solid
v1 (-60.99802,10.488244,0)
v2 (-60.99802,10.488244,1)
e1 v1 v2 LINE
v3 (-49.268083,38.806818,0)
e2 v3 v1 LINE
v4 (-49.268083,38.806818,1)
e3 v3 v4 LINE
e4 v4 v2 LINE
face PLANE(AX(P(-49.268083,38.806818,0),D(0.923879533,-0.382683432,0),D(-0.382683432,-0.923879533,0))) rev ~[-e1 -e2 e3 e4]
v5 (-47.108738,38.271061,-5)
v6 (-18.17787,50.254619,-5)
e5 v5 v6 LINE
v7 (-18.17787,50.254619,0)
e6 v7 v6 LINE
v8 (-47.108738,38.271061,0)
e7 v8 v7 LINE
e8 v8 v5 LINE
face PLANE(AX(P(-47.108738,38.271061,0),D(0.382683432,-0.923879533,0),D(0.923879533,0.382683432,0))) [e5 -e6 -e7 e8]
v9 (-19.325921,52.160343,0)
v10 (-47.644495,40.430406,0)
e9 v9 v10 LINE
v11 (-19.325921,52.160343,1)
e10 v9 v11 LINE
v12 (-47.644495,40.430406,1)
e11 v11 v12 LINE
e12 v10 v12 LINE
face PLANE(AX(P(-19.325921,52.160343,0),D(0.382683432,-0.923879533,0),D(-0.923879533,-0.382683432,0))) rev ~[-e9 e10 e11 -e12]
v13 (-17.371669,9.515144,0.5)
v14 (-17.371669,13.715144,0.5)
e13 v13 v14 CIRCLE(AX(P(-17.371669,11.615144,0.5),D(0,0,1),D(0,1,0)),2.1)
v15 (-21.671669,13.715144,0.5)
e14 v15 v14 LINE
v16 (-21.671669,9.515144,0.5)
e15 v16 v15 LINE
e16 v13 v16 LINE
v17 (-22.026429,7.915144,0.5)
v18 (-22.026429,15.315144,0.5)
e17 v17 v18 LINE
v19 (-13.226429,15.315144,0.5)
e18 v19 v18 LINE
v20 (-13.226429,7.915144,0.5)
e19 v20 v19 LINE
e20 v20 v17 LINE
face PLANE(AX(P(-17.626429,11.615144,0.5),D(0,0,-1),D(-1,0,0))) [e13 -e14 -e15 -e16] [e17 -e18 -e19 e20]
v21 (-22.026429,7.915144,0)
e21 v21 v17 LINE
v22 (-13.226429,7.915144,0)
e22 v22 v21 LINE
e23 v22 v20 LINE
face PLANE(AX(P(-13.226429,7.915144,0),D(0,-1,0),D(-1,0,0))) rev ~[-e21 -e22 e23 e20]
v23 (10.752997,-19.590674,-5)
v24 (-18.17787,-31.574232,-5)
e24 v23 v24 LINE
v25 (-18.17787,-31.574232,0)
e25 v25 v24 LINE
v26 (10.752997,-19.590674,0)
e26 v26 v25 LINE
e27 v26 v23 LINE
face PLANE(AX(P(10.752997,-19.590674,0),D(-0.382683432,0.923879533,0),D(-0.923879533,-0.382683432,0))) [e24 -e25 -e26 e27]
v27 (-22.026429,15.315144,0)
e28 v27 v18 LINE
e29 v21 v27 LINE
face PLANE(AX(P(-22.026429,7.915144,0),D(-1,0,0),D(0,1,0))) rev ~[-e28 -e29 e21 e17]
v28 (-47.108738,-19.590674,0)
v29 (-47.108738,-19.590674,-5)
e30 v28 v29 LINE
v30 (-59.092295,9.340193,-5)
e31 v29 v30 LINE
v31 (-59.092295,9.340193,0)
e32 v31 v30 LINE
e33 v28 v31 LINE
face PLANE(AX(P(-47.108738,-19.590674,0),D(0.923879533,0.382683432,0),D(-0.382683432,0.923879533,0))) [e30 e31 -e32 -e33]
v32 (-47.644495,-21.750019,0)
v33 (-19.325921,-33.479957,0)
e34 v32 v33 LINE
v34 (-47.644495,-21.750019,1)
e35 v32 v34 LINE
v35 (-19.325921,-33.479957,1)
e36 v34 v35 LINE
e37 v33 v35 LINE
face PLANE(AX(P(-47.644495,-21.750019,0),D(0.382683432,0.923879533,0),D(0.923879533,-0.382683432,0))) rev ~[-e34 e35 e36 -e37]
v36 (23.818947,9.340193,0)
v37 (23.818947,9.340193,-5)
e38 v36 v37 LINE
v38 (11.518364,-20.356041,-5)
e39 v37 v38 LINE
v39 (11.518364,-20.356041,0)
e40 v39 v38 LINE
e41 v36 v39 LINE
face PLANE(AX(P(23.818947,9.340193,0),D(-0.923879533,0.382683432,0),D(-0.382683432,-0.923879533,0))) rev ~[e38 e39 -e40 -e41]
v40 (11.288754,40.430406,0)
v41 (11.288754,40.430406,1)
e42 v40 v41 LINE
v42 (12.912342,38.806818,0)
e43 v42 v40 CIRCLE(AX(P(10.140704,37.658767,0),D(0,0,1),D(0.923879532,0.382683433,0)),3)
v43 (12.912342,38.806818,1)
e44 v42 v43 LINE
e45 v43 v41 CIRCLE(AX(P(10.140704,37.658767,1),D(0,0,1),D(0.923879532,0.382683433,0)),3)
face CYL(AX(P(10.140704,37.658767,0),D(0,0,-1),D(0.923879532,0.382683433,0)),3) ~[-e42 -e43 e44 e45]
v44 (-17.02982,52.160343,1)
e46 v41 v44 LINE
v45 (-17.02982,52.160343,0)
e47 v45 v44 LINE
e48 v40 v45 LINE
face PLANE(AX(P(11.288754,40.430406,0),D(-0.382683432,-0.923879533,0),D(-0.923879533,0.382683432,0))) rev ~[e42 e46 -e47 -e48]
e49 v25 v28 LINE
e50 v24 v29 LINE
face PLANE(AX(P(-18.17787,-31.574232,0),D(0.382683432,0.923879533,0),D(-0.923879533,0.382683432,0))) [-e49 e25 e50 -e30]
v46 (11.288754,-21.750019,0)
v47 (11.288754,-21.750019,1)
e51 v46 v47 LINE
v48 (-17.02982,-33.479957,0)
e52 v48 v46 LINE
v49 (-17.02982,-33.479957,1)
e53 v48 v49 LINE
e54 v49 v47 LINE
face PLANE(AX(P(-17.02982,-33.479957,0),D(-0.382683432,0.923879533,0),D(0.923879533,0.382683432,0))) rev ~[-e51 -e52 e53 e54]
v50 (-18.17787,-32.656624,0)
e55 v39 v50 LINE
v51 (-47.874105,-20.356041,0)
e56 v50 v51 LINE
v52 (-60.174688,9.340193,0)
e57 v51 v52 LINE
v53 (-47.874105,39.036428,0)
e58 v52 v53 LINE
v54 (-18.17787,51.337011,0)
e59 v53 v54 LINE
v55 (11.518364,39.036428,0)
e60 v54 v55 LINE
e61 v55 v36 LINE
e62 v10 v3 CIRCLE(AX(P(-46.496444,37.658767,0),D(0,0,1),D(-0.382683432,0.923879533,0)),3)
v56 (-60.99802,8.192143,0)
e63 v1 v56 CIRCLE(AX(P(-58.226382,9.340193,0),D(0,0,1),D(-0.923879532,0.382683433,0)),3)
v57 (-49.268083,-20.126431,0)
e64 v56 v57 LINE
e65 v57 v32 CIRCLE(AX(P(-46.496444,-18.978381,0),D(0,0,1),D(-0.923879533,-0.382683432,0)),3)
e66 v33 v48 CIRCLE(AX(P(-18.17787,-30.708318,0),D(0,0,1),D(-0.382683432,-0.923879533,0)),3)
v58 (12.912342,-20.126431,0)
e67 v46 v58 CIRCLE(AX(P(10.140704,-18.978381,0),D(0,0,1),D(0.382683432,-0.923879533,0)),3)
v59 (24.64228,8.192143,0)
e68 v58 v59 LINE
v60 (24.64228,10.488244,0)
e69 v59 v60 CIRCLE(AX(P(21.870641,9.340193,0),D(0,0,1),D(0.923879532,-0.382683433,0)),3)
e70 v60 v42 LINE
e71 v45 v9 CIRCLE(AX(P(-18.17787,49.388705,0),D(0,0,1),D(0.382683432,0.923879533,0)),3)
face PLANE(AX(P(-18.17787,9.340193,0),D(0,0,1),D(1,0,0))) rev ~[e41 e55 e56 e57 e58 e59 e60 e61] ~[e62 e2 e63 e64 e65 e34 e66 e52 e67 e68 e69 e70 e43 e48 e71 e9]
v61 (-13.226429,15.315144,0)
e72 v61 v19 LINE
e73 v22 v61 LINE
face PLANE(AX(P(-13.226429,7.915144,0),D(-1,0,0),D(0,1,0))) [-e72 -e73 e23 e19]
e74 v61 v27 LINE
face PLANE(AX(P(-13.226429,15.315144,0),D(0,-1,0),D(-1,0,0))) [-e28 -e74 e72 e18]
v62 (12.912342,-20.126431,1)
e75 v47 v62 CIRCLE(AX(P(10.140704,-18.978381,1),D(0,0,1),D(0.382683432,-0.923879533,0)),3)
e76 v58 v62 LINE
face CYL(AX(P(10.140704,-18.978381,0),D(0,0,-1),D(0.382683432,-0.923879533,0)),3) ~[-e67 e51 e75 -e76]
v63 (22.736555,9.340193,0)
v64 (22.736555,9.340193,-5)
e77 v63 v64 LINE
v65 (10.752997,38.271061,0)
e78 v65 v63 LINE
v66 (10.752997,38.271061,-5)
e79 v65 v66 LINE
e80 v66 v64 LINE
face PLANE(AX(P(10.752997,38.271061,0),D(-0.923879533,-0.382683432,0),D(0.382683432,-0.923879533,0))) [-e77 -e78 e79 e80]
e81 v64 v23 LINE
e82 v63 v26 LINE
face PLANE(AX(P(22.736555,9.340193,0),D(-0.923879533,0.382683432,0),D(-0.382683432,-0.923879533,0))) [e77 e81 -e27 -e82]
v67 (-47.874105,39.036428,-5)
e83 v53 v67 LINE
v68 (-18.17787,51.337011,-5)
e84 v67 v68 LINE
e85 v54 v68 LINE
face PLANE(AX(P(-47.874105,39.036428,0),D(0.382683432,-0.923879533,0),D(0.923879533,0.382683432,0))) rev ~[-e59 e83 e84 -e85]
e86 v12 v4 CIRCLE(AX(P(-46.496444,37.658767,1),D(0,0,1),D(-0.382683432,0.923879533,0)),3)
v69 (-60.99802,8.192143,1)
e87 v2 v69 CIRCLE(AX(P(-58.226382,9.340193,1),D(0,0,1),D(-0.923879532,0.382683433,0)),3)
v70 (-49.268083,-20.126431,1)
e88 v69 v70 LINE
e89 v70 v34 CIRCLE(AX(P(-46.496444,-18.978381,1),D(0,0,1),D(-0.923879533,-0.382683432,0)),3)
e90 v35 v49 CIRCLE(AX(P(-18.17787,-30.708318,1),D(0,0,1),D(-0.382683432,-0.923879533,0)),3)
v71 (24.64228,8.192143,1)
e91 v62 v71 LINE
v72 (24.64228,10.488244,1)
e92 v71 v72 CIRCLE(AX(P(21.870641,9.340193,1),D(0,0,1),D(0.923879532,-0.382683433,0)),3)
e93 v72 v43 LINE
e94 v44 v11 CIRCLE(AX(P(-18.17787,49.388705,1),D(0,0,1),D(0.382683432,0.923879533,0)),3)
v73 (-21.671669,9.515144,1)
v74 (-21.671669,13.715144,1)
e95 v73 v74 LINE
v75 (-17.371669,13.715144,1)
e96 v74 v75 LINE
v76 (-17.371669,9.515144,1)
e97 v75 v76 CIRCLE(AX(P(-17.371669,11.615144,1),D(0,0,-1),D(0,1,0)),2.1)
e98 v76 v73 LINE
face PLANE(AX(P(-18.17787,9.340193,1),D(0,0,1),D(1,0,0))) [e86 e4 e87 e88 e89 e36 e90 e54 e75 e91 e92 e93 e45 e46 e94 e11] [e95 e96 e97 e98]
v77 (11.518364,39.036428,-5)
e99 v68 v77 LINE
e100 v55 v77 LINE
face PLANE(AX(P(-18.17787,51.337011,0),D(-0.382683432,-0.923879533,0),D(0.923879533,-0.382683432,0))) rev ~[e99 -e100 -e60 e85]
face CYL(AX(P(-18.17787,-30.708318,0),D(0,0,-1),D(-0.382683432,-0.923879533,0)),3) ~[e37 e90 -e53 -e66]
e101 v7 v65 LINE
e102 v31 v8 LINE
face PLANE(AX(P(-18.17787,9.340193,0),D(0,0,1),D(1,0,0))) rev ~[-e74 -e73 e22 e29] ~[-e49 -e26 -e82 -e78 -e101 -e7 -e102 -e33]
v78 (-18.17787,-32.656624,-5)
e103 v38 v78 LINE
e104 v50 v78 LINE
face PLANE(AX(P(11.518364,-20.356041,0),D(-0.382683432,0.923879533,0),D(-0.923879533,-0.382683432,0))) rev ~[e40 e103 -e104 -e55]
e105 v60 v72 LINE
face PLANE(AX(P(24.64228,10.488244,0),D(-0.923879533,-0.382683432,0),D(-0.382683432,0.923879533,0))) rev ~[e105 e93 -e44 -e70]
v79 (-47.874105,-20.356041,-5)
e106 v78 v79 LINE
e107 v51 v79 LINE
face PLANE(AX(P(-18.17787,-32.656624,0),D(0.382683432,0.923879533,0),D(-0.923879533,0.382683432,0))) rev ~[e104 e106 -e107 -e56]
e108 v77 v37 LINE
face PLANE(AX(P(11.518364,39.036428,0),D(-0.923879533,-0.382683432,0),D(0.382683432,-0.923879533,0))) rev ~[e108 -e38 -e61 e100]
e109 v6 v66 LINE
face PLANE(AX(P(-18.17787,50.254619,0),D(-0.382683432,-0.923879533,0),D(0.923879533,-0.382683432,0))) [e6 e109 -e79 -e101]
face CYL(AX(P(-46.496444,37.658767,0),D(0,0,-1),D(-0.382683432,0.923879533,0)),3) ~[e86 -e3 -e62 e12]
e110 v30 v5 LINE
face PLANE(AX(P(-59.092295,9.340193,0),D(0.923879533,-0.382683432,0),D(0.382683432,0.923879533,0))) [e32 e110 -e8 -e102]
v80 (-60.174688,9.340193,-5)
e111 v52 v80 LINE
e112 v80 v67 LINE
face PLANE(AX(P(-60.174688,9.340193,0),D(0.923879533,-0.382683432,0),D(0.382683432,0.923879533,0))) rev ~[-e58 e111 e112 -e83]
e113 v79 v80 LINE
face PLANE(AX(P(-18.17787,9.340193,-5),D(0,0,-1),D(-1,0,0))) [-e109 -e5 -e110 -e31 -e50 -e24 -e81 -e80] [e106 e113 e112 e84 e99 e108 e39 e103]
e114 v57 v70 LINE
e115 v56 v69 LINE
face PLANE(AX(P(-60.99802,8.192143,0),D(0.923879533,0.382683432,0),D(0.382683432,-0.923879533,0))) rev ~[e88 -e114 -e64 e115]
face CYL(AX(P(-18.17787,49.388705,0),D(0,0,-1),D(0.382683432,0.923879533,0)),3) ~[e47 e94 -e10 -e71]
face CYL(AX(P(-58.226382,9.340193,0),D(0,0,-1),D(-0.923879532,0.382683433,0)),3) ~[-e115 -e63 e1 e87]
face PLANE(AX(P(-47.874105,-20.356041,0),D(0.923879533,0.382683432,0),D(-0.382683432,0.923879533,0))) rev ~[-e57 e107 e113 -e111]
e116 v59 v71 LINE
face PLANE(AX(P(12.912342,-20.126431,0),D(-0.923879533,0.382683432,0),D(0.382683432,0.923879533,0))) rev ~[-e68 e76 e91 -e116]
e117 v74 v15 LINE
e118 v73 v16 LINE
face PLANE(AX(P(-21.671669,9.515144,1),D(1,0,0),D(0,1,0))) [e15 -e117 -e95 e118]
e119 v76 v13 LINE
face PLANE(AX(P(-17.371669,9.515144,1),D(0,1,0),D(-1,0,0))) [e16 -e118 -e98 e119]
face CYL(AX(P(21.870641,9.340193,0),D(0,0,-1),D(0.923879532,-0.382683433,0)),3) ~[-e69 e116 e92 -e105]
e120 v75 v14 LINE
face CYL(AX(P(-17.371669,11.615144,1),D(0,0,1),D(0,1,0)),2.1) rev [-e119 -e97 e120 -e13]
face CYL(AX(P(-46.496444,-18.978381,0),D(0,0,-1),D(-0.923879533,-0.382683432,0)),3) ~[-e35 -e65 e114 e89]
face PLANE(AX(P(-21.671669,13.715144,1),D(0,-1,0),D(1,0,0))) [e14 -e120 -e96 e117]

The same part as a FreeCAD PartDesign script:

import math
import FreeCAD as App
import Part
import Sketcher
Q = App.Units.Quantity


def add_polygon(sketch, points):
    """Adds a closed chain of lines whose ends are joined by coincident constraints."""
    first, n = sketch.GeometryCount, len(points)
    for a, b in zip(points, points[1:] + points[:1]):
        sketch.addGeometry(Part.LineSegment(App.Vector(*a, 0), App.Vector(*b, 0)), False)
    for i in range(n):
        sketch.addConstraint(Sketcher.Constraint("Coincident", first + i, 2, first + (i + 1) % n, 1))

doc = App.newDocument("Part")
body = doc.addObject("PartDesign::Body", "Body")

sketch1 = doc.addObject("Sketcher::SketchObject", "Sketch")
body.addObject(sketch1)
sketch1.AttachmentSupport = (doc.XY_Plane, [""])
sketch1.MapMode = "FlatFace"
sketch1.addGeometry(Part.LineSegment(App.Vector(-19.3, 52.2, 0), App.Vector(-47.6, 40.4, 0)), False)
sketch1.addGeometry(Part.ArcOfCircle(Part.Circle(App.Vector(-46.5, 37.7, 0), App.Vector(0, 0, 1), 3), math.radians(112), math.radians(157)), False)
sketch1.addGeometry(Part.LineSegment(App.Vector(-49.3, 38.8, 0), App.Vector(-61, 10.5, 0)), False)
sketch1.addGeometry(Part.ArcOfCircle(Part.Circle(App.Vector(-58.2, 9.3, 0), App.Vector(0, 0, 1), 3), math.radians(157), math.radians(203)), False)
sketch1.addGeometry(Part.LineSegment(App.Vector(-61, 8.2, 0), App.Vector(-49.3, -20.1, 0)), False)
sketch1.addGeometry(Part.ArcOfCircle(Part.Circle(App.Vector(-46.5, -19, 0), App.Vector(0, 0, 1), 3), math.radians(-158), math.radians(-112)), False)
sketch1.addGeometry(Part.LineSegment(App.Vector(-47.6, -21.8, 0), App.Vector(-19.3, -33.5, 0)), False)
sketch1.addGeometry(Part.ArcOfCircle(Part.Circle(App.Vector(-18.2, -30.7, 0), App.Vector(0, 0, 1), 3), math.radians(-112), math.radians(-68)), False)
sketch1.addGeometry(Part.LineSegment(App.Vector(-17, -33.5, 0), App.Vector(11.3, -21.8, 0)), False)
sketch1.addGeometry(Part.ArcOfCircle(Part.Circle(App.Vector(10.1, -19, 0), App.Vector(0, 0, 1), 3), math.radians(-68), math.radians(-22)), False)
sketch1.addGeometry(Part.LineSegment(App.Vector(12.9, -20.1, 0), App.Vector(24.6, 8.2, 0)), False)
sketch1.addGeometry(Part.ArcOfCircle(Part.Circle(App.Vector(21.9, 9.3, 0), App.Vector(0, 0, 1), 3), math.radians(-23), math.radians(23)), False)
sketch1.addGeometry(Part.LineSegment(App.Vector(24.6, 10.5, 0), App.Vector(12.9, 38.8, 0)), False)
sketch1.addGeometry(Part.ArcOfCircle(Part.Circle(App.Vector(10.1, 37.7, 0), App.Vector(0, 0, 1), 3), math.radians(23), math.radians(68)), False)
sketch1.addGeometry(Part.LineSegment(App.Vector(11.3, 40.4, 0), App.Vector(-17, 52.2, 0)), False)
sketch1.addGeometry(Part.ArcOfCircle(Part.Circle(App.Vector(-18.2, 49.4, 0), App.Vector(0, 0, 1), 3), math.radians(68), math.radians(112)), False)
sketch1.addConstraint(Sketcher.Constraint("Tangent", 0, 2, 1, 1))
sketch1.addConstraint(Sketcher.Constraint("Tangent", 1, 2, 2, 1))
sketch1.addConstraint(Sketcher.Constraint("Tangent", 2, 2, 3, 1))
sketch1.addConstraint(Sketcher.Constraint("Tangent", 3, 2, 4, 1))
sketch1.addConstraint(Sketcher.Constraint("Tangent", 4, 2, 5, 1))
sketch1.addConstraint(Sketcher.Constraint("Tangent", 5, 2, 6, 1))
sketch1.addConstraint(Sketcher.Constraint("Tangent", 6, 2, 7, 1))
sketch1.addConstraint(Sketcher.Constraint("Tangent", 7, 2, 8, 1))
sketch1.addConstraint(Sketcher.Constraint("Tangent", 8, 2, 9, 1))
sketch1.addConstraint(Sketcher.Constraint("Tangent", 9, 2, 10, 1))
sketch1.addConstraint(Sketcher.Constraint("Tangent", 10, 2, 11, 1))
sketch1.addConstraint(Sketcher.Constraint("Tangent", 11, 2, 12, 1))
sketch1.addConstraint(Sketcher.Constraint("Tangent", 12, 2, 13, 1))
sketch1.addConstraint(Sketcher.Constraint("Tangent", 13, 2, 14, 1))
sketch1.addConstraint(Sketcher.Constraint("Tangent", 14, 2, 15, 1))
sketch1.addConstraint(Sketcher.Constraint("Tangent", 15, 2, 0, 1))
sketch1.addConstraint(Sketcher.Constraint("Equal", 1, 3))
sketch1.addConstraint(Sketcher.Constraint("Equal", 3, 5))
sketch1.addConstraint(Sketcher.Constraint("Equal", 5, 7))
sketch1.addConstraint(Sketcher.Constraint("Equal", 7, 9))
sketch1.addConstraint(Sketcher.Constraint("Equal", 9, 11))
sketch1.addConstraint(Sketcher.Constraint("Equal", 11, 13))
sketch1.addConstraint(Sketcher.Constraint("Equal", 13, 15))
sketch1.addConstraint(Sketcher.Constraint("Perpendicular", 0, 4))
sketch1.addConstraint(Sketcher.Constraint("Perpendicular", 2, 6))
sketch1.addConstraint(Sketcher.Constraint("Perpendicular", 4, 8))
sketch1.addConstraint(Sketcher.Constraint("Perpendicular", 6, 10))
sketch1.addConstraint(Sketcher.Constraint("Perpendicular", 8, 12))
sketch1.addConstraint(Sketcher.Constraint("Perpendicular", 10, 14))
sketch1.addConstraint(Sketcher.Constraint("Horizontal", 5, 3, 9, 3))
sketch1.addConstraint(Sketcher.Constraint("Horizontal", 3, 3, 11, 3))
sketch1.addConstraint(Sketcher.Constraint("Horizontal", 1, 3, 13, 3))
sketch1.addConstraint(Sketcher.Constraint("Horizontal", 6, 2, 7, 2))
sketch1.addConstraint(Sketcher.Constraint("Vertical", 1, 3, 5, 3))
sketch1.addConstraint(Sketcher.Constraint("Equal", 0, 2))
sketch1.addConstraint(Sketcher.Constraint("Radius", 1, 3.0))
sketch1.addConstraint(Sketcher.Constraint("Angle", 0, Q("-157.5 deg")))
sketch1.addConstraint(Sketcher.Constraint("DistanceY", 0, 2, 15, 3, 8.958299))
sketch1.addConstraint(Sketcher.Constraint("DistanceX", 3, 3, -1, 1, 58.226382))
sketch1.addConstraint(Sketcher.Constraint("DistanceY", 5, 3, -1, 1, 18.978381))
pad1 = doc.addObject("PartDesign::Pad", "Pad")
body.addObject(pad1)
pad1.Profile = sketch1
pad1.Length = 1

sketch2 = doc.addObject("Sketcher::SketchObject", "Sketch001")
body.addObject(sketch2)
sketch2.AttachmentSupport = (doc.XY_Plane, [""])
sketch2.MapMode = "FlatFace"
sketch2.AttachmentOffset = App.Placement(App.Vector(0, 0, 1), App.Rotation())
sketch2.addGeometry(Part.LineSegment(App.Vector(-17.4, 13.7, 0), App.Vector(-21.7, 13.7, 0)), False)
sketch2.addGeometry(Part.LineSegment(App.Vector(-21.7, 13.7, 0), App.Vector(-21.7, 9.5, 0)), False)
sketch2.addGeometry(Part.LineSegment(App.Vector(-21.7, 9.5, 0), App.Vector(-17.4, 9.5, 0)), False)
sketch2.addGeometry(Part.ArcOfCircle(Part.Circle(App.Vector(-17.4, 11.6, 0), App.Vector(0, 0, 1), 2.1), math.radians(-90), math.radians(90)), False)
sketch2.addConstraint(Sketcher.Constraint("Coincident", 0, 2, 1, 1))
sketch2.addConstraint(Sketcher.Constraint("Coincident", 1, 2, 2, 1))
sketch2.addConstraint(Sketcher.Constraint("Tangent", 2, 2, 3, 1))
sketch2.addConstraint(Sketcher.Constraint("Tangent", 3, 2, 0, 1))
sketch2.addConstraint(Sketcher.Constraint("Horizontal", 0))
sketch2.addConstraint(Sketcher.Constraint("Vertical", 1))
sketch2.addConstraint(Sketcher.Constraint("Horizontal", 2))
sketch2.addConstraint(Sketcher.Constraint("Radius", 3, 2.1))
sketch2.addConstraint(Sketcher.Constraint("DistanceX", 0, 2, 0, 1, 4.3))
sketch2.addConstraint(Sketcher.Constraint("DistanceX", 3, 3, -1, 1, 17.371669))
sketch2.addConstraint(Sketcher.Constraint("DistanceY", -1, 1, 3, 3, 11.615144))
pocket1 = doc.addObject("PartDesign::Pocket", "Pocket")
body.addObject(pocket1)
pocket1.Profile = sketch2
pocket1.Length = 1

sketch3 = doc.addObject("Sketcher::SketchObject", "Sketch002")
body.addObject(sketch3)
sketch3.AttachmentSupport = (doc.XY_Plane, [""])
sketch3.MapMode = "FlatFace"
add_polygon(sketch3, [(-48, 39), (-18, 51), (12, 39), (24, 9), (12, -20), (-18, -33), (-48, -20), (-60, 9)])
add_polygon(sketch3, [(-18, 50), (-47, 38), (-59, 9), (-47, -20), (-18, -32), (11, -20), (23, 9), (11, 38)])
sketch3.addConstraint(Sketcher.Constraint("Perpendicular", 0, 2))
sketch3.addConstraint(Sketcher.Constraint("Perpendicular", 1, 3))
sketch3.addConstraint(Sketcher.Constraint("Perpendicular", 2, 4))
sketch3.addConstraint(Sketcher.Constraint("Perpendicular", 3, 5))
sketch3.addConstraint(Sketcher.Constraint("Perpendicular", 4, 6))
sketch3.addConstraint(Sketcher.Constraint("Perpendicular", 5, 7))
sketch3.addConstraint(Sketcher.Constraint("Perpendicular", 6, 8))
sketch3.addConstraint(Sketcher.Constraint("Parallel", 7, 9))
sketch3.addConstraint(Sketcher.Constraint("Perpendicular", 8, 10))
sketch3.addConstraint(Sketcher.Constraint("Perpendicular", 9, 11))
sketch3.addConstraint(Sketcher.Constraint("Perpendicular", 10, 12))
sketch3.addConstraint(Sketcher.Constraint("Perpendicular", 11, 13))
sketch3.addConstraint(Sketcher.Constraint("Perpendicular", 12, 14))
sketch3.addConstraint(Sketcher.Constraint("Perpendicular", 13, 15))
sketch3.addConstraint(Sketcher.Constraint("Horizontal", 3, 2, 5, 2))
sketch3.addConstraint(Sketcher.Constraint("Horizontal", 2, 2, 6, 2))
sketch3.addConstraint(Sketcher.Constraint("Horizontal", 1, 2, 7, 2))
sketch3.addConstraint(Sketcher.Constraint("Horizontal", 6, 2, 9, 2))
sketch3.addConstraint(Sketcher.Constraint("Horizontal", 10, 2, 12, 2))
sketch3.addConstraint(Sketcher.Constraint("Horizontal", 9, 2, 13, 2))
sketch3.addConstraint(Sketcher.Constraint("Horizontal", 8, 2, 14, 2))
sketch3.addConstraint(Sketcher.Constraint("Vertical", 1, 2, 3, 2))
sketch3.addConstraint(Sketcher.Constraint("Vertical", 0, 2, 4, 2))
sketch3.addConstraint(Sketcher.Constraint("Vertical", 8, 2, 10, 2))
sketch3.addConstraint(Sketcher.Constraint("Vertical", 4, 2, 11, 2))
sketch3.addConstraint(Sketcher.Constraint("Equal", 1, 2))
sketch3.addConstraint(Sketcher.Constraint("Equal", 8, 9))
sketch3.addConstraint(Sketcher.Constraint("Angle", 0, Q("22.5 deg")))
sketch3.addConstraint(Sketcher.Constraint("DistanceY", 5, 2, 8, 2, 58.627102))
sketch3.addConstraint(Sketcher.Constraint("DistanceX", 0, 2, -1, 1, 18.17787))
sketch3.addConstraint(Sketcher.Constraint("DistanceY", -1, 1, 0, 2, 51.337011))
sketch3.addConstraint(Sketcher.Constraint("DistanceY", 3, 2, -1, 1, 20.356041))
pad2 = doc.addObject("PartDesign::Pad", "Pad001")
body.addObject(pad2)
pad2.Profile = sketch3
pad2.Length = 5
pad2.Reversed = True

sketch4 = doc.addObject("Sketcher::SketchObject", "Sketch003")
body.addObject(sketch4)
sketch4.AttachmentSupport = (doc.XY_Plane, [""])
sketch4.MapMode = "FlatFace"
add_polygon(sketch4, [(-13, 15), (-13, 8), (-22, 8), (-22, 15)])
sketch4.addConstraint(Sketcher.Constraint("Vertical", 0))
sketch4.addConstraint(Sketcher.Constraint("Horizontal", 1))
sketch4.addConstraint(Sketcher.Constraint("Vertical", 2))
sketch4.addConstraint(Sketcher.Constraint("Horizontal", 3))
sketch4.addConstraint(Sketcher.Constraint("DistanceX", 1, 2, 1, 1, 8.8))
sketch4.addConstraint(Sketcher.Constraint("DistanceY", 0, 2, 0, 1, 7.4))
sketch4.addConstraint(Sketcher.Constraint("DistanceX", 0, 2, -1, 1, 13.226429))
sketch4.addConstraint(Sketcher.Constraint("DistanceY", -1, 1, 0, 2, 7.915144))
pocket2 = doc.addObject("PartDesign::Pocket", "Pocket001")
body.addObject(pocket2)
pocket2.Profile = sketch4
pocket2.Length = 0.5
pocket2.Reversed = True

doc.recompute()
